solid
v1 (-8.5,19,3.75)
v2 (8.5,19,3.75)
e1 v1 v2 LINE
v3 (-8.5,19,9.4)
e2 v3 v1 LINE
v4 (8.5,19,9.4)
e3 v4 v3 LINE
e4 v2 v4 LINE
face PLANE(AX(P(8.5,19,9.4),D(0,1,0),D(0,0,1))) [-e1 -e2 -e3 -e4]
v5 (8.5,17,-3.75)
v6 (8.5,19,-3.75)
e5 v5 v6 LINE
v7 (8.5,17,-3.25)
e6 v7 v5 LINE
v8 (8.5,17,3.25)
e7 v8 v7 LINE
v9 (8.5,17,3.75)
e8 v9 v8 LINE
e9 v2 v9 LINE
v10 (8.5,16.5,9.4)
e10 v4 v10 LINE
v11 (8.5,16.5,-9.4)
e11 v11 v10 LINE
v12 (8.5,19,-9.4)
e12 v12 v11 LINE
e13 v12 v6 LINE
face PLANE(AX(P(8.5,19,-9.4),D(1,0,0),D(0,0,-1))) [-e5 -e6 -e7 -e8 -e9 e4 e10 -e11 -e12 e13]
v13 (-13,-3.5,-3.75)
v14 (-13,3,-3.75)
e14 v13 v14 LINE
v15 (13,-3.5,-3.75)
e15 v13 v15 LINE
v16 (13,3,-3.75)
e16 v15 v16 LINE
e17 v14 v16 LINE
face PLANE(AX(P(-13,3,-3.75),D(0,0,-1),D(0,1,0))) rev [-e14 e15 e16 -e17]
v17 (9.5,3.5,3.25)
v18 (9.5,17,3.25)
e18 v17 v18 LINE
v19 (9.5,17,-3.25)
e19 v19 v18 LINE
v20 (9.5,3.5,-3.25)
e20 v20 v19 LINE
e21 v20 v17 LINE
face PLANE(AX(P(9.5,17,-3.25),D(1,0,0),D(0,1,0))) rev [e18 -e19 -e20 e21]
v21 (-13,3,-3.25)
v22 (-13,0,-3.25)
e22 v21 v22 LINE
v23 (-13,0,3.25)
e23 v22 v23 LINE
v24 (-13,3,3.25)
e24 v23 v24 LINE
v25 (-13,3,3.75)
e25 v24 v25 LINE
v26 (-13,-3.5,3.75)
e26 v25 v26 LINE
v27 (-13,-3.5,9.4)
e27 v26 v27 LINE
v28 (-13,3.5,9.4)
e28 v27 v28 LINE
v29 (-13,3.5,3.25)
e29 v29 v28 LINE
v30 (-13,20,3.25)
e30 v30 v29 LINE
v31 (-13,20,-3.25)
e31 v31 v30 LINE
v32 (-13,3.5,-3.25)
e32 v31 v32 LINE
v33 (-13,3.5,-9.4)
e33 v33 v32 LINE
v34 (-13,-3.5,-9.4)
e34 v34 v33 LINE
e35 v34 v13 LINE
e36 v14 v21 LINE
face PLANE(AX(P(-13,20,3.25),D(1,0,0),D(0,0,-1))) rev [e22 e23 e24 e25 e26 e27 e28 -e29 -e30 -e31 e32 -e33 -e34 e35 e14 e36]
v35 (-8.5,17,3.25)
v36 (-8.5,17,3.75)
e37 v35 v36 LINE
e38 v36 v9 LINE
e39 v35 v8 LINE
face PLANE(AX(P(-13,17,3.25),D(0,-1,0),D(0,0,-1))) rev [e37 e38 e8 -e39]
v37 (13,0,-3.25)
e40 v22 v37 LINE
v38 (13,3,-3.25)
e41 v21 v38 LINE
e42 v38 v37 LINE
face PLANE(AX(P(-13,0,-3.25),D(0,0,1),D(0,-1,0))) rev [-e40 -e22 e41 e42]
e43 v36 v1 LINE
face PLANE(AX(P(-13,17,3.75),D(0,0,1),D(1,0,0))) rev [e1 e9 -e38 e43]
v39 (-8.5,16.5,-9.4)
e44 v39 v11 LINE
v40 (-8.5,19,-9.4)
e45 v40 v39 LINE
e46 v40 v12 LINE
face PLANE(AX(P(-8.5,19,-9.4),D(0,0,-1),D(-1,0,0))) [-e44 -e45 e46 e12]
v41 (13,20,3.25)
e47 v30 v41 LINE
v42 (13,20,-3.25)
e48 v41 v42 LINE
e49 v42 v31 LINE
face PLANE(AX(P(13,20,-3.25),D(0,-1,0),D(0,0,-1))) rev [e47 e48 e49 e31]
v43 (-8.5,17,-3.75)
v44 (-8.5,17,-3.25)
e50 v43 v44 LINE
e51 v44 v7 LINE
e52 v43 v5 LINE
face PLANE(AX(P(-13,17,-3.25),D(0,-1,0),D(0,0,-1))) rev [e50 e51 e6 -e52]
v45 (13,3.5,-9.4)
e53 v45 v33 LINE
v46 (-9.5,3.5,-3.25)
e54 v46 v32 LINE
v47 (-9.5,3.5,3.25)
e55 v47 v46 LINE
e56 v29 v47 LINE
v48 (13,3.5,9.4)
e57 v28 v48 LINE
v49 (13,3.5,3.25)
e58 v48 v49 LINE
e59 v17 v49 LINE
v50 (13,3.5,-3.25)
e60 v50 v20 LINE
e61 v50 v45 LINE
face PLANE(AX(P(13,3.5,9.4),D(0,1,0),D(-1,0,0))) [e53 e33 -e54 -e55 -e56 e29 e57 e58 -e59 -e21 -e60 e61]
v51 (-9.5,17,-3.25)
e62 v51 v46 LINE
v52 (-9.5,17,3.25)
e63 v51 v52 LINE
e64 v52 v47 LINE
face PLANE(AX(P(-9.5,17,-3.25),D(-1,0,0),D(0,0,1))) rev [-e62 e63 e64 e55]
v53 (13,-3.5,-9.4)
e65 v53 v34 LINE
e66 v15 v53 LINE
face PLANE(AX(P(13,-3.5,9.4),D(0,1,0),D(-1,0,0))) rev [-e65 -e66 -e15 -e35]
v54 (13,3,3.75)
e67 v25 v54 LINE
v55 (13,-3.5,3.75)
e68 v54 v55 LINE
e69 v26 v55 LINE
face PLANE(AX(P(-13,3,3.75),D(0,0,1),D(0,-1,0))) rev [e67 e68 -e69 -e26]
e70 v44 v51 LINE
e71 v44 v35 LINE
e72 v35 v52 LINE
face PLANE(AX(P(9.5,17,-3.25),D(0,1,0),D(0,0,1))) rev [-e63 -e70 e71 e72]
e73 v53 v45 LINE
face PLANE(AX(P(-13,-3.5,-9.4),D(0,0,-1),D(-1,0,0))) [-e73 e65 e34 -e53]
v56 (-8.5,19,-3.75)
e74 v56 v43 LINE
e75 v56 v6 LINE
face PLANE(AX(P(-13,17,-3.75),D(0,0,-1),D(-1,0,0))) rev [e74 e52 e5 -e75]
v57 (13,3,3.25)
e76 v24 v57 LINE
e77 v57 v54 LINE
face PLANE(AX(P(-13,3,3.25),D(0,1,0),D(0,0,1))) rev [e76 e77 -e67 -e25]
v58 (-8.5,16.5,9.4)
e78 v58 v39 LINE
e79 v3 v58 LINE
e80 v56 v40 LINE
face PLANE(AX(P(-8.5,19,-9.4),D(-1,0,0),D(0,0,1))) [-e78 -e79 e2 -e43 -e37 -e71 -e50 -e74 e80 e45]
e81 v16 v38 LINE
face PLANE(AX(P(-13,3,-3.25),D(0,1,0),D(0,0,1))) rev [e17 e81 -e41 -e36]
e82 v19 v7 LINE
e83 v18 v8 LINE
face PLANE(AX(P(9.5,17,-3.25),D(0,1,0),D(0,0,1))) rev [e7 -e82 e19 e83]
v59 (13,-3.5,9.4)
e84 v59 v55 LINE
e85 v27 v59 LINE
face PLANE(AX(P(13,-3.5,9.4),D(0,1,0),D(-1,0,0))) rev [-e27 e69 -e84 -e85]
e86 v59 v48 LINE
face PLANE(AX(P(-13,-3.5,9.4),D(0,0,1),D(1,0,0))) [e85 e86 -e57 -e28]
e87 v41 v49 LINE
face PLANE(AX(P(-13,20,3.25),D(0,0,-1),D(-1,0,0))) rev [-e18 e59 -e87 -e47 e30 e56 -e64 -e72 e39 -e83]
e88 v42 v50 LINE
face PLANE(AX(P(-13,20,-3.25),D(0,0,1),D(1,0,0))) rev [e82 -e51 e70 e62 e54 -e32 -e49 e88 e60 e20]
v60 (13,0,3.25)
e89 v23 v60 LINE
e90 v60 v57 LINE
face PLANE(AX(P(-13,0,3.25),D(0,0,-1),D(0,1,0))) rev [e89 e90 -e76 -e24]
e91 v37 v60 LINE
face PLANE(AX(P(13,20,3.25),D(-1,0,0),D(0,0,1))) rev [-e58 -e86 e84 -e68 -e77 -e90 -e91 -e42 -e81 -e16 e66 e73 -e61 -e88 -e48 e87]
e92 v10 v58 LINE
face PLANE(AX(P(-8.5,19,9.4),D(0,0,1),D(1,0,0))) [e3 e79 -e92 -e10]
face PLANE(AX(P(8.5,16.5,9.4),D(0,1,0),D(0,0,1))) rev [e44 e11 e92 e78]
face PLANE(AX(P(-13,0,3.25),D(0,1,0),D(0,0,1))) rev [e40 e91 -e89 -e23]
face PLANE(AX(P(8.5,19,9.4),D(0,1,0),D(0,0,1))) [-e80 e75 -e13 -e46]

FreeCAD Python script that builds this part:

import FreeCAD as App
import Part
import Sketcher


def add_polygon(sketch, points):
    """Adds a closed chain of lines whose ends are joined by coincident constraints."""
    first, n = sketch.GeometryCount, len(points)
    for a, b in zip(points, points[1:] + points[:1]):
        sketch.addGeometry(Part.LineSegment(App.Vector(*a, 0), App.Vector(*b, 0)), False)
    for i in range(n):
        sketch.addConstraint(Sketcher.Constraint("Coincident", first + i, 2, first + (i + 1) % n, 1))

doc = App.newDocument("Part")
body = doc.addObject("PartDesign::Body", "Body")

# Sketch on XZ plane
sketch1 = doc.addObject("Sketcher::SketchObject", "Sketch")
body.addObject(sketch1)
sketch1.AttachmentSupport = (doc.XZ_Plane, [""])
sketch1.MapMode = "FlatFace"
add_polygon(sketch1, [(-13, -3), (-13, 3), (13, 3), (13, -3)])  # lines 0-3
sketch1.addConstraint(Sketcher.Constraint("Vertical", 0))
sketch1.addConstraint(Sketcher.Constraint("Horizontal", 1))
sketch1.addConstraint(Sketcher.Constraint("Vertical", 2))
sketch1.addConstraint(Sketcher.Constraint("Horizontal", 3))
sketch1.addConstraint(Sketcher.Constraint("Symmetric", 0, 2, 2, 2, -1, 1))
sketch1.addConstraint(Sketcher.Constraint("DistanceX", 1, 1, 1, 2, 26.0))
sketch1.addConstraint(Sketcher.Constraint("DistanceY", 0, 1, 0, 2, 6.5))
pad1 = doc.addObject("PartDesign::Pad", "Pad")
body.addObject(pad1)
pad1.Profile = sketch1
pad1.Length = 20
pad1.Reversed = True

# Sketch on XY plane
sketch2 = doc.addObject("Sketcher::SketchObject", "Sketch001")
body.addObject(sketch2)
sketch2.AttachmentSupport = (doc.XY_Plane, [""])
sketch2.MapMode = "FlatFace"
sketch2.AttachmentOffset = App.Placement(App.Vector(0, 0, 3.25), App.Rotation())
add_polygon(sketch2, [(-10, 17), (-10, 3), (10, 3), (10, 17)])  # lines 0-3
sketch2.addConstraint(Sketcher.Constraint("Vertical", 0))
sketch2.addConstraint(Sketcher.Constraint("Horizontal", 1))
sketch2.addConstraint(Sketcher.Constraint("Vertical", 2))
sketch2.addConstraint(Sketcher.Constraint("Horizontal", 3))
sketch2.addConstraint(Sketcher.Constraint("DistanceX", 1, 1, 1, 2, 19.0))
sketch2.addConstraint(Sketcher.Constraint("DistanceY", 0, 2, 0, 1, 14.0))
sketch2.addConstraint(Sketcher.Constraint("DistanceY", -1, 1, 0, 2, 3.0))
sketch2.addConstraint(Sketcher.Constraint("DistanceX", 0, 2, -1, 1, 9.5))
pocket1 = doc.addObject("PartDesign::Pocket", "Pocket")
body.addObject(pocket1)
pocket1.Profile = sketch2
pocket1.Type = "ThroughAll"

# Sketch on XZ plane
sketch3 = doc.addObject("Sketcher::SketchObject", "Sketch002")
body.addObject(sketch3)
sketch3.AttachmentSupport = (doc.XZ_Plane, [""])
sketch3.MapMode = "FlatFace"
sketch3.AttachmentOffset = App.Placement(App.Vector(0, 0, -17), App.Rotation())
add_polygon(sketch3, [(-8, 9), (-8, -9), (8, -9), (8, 9)])  # lines 0-3
sketch3.addConstraint(Sketcher.Constraint("Vertical", 0))
sketch3.addConstraint(Sketcher.Constraint("Horizontal", 1))
sketch3.addConstraint(Sketcher.Constraint("Vertical", 2))
sketch3.addConstraint(Sketcher.Constraint("Horizontal", 3))
sketch3.addConstraint(Sketcher.Constraint("Symmetric", 0, 2, 2, 2, -1, 1))
sketch3.addConstraint(Sketcher.Constraint("DistanceX", 1, 1, 1, 2, 17.0))
sketch3.addConstraint(Sketcher.Constraint("DistanceY", 0, 2, 0, 1, 18.8))
pad2 = doc.addObject("PartDesign::Pad", "Pad001")
body.addObject(pad2)
pad2.Profile = sketch3
pad2.Type = "TwoLengths"
pad2.Length = 0.5
pad2.Length2 = 2

# Sketch on YZ plane
sketch4 = doc.addObject("Sketcher::SketchObject", "Sketch003")
body.addObject(sketch4)
sketch4.AttachmentSupport = (doc.YZ_Plane, [""])
sketch4.MapMode = "FlatFace"
sketch4.AttachmentOffset = App.Placement(App.Vector(0, 0, 8.5), App.Rotation())
add_polygon(sketch4, [(19, 3.8), (17, 3.8), (17, 3.2), (19, 3.2)])  # lines 0-3
add_polygon(sketch4, [(19, -3.2), (17, -3.2), (17, -3.8), (19, -3.8)])  # lines 4-7
sketch4.addConstraint(Sketcher.Constraint("Horizontal", 0))
sketch4.addConstraint(Sketcher.Constraint("Vertical", 1))
sketch4.addConstraint(Sketcher.Constraint("Horizontal", 2))
sketch4.addConstraint(Sketcher.Constraint("Vertical", 3))
sketch4.addConstraint(Sketcher.Constraint("Horizontal", 4))
sketch4.addConstraint(Sketcher.Constraint("Vertical", 5))
sketch4.addConstraint(Sketcher.Constraint("Horizontal", 6))
sketch4.addConstraint(Sketcher.Constraint("Vertical", 7))
sketch4.addConstraint(Sketcher.Constraint("Symmetric", 1, 2, 4, 2, -1))
sketch4.addConstraint(Sketcher.Constraint("Symmetric", 3, 2, 6, 2, -1))
sketch4.addConstraint(Sketcher.Constraint("DistanceX", 0, 2, 0, 1, 2.0))
sketch4.addConstraint(Sketcher.Constraint("DistanceY", 1, 2, 1, 1, 0.5))
sketch4.addConstraint(Sketcher.Constraint("DistanceX", -1, 1, 0, 2, 17.0))
sketch4.addConstraint(Sketcher.Constraint("DistanceY", 4, 2, 0, 2, 7.0))
pocket2 = doc.addObject("PartDesign::Pocket", "Pocket001")
body.addObject(pocket2)
pocket2.Profile = sketch4
pocket2.Type = "ThroughAll"

# Sketch on XZ plane
sketch5 = doc.addObject("Sketcher::SketchObject", "Sketch004")
body.addObject(sketch5)
sketch5.AttachmentSupport = (doc.XZ_Plane, [""])
sketch5.MapMode = "FlatFace"
sketch5.AttachmentOffset = App.Placement(App.Vector(0, 0, -3), App.Rotation())
add_polygon(sketch5, [(13, 9), (13, -9), (-13, -9), (-13, 9)])  # lines 0-3
sketch5.addConstraint(Sketcher.Constraint("Vertical", 0))
sketch5.addConstraint(Sketcher.Constraint("Horizontal", 1))
sketch5.addConstraint(Sketcher.Constraint("Vertical", 2))
sketch5.addConstraint(Sketcher.Constraint("Horizontal", 3))
sketch5.addConstraint(Sketcher.Constraint("Symmetric", 0, 2, 2, 2, -1, 1))
sketch5.addConstraint(Sketcher.Constraint("DistanceX", 1, 2, 1, 1, 26.0))
sketch5.addConstraint(Sketcher.Constraint("DistanceY", 0, 2, 0, 1, 18.8))
pad3 = doc.addObject("PartDesign::Pad", "Pad002")
body.addObject(pad3)
pad3.Profile = sketch5
pad3.Type = "TwoLengths"
pad3.Length = 0.5
pad3.Length2 = 6.5
pad3.Reversed = True

# Sketch on YZ plane
sketch6 = doc.addObject("Sketcher::SketchObject", "Sketch005")
body.addObject(sketch6)
sketch6.AttachmentSupport = (doc.YZ_Plane, [""])
sketch6.MapMode = "FlatFace"
sketch6.AttachmentOffset = App.Placement(App.Vector(0, 0, 13), App.Rotation())
add_polygon(sketch6, [(0, 3.2), (3, 3.2), (3, 3.8), (-3.5, 3.8), (-3.5, -3.8), (3, -3.8), (3, -3.2), (0, -3.2)])  # lines 0-7
sketch6.addConstraint(Sketcher.Constraint("Horizontal", 0))
sketch6.addConstraint(Sketcher.Constraint("Vertical", 1))
sketch6.addConstraint(Sketcher.Constraint("Horizontal", 2))
sketch6.addConstraint(Sketcher.Constraint("Vertical", 3))
sketch6.addConstraint(Sketcher.Constraint("Horizontal", 4))
sketch6.addConstraint(Sketcher.Constraint("Vertical", 5))
sketch6.addConstraint(Sketcher.Constraint("Horizontal", 6))
sketch6.addConstraint(Sketcher.Constraint("Vertical", 7))
sketch6.addConstraint(Sketcher.Constraint("Symmetric", 6, 2, 7, 2, -1, 1))
sketch6.addConstraint(Sketcher.Constraint("Symmetric", 1, 2, 4, 2, -1))
sketch6.addConstraint(Sketcher.Constraint("Equal", 4, 7))
sketch6.addConstraint(Sketcher.Constraint("DistanceX", 0, 1, 0, 2, 3.0))
sketch6.addConstraint(Sketcher.Constraint("DistanceX", 2, 2, 2, 1, 6.5))
sketch6.addConstraint(Sketcher.Constraint("DistanceY", 1, 1, 1, 2, 0.5))
pocket3 = doc.addObject("PartDesign::Pocket", "Pocket002")
body.addObject(pocket3)
pocket3.Profile = sketch6
pocket3.Type = "ThroughAll"

doc.recompute()
